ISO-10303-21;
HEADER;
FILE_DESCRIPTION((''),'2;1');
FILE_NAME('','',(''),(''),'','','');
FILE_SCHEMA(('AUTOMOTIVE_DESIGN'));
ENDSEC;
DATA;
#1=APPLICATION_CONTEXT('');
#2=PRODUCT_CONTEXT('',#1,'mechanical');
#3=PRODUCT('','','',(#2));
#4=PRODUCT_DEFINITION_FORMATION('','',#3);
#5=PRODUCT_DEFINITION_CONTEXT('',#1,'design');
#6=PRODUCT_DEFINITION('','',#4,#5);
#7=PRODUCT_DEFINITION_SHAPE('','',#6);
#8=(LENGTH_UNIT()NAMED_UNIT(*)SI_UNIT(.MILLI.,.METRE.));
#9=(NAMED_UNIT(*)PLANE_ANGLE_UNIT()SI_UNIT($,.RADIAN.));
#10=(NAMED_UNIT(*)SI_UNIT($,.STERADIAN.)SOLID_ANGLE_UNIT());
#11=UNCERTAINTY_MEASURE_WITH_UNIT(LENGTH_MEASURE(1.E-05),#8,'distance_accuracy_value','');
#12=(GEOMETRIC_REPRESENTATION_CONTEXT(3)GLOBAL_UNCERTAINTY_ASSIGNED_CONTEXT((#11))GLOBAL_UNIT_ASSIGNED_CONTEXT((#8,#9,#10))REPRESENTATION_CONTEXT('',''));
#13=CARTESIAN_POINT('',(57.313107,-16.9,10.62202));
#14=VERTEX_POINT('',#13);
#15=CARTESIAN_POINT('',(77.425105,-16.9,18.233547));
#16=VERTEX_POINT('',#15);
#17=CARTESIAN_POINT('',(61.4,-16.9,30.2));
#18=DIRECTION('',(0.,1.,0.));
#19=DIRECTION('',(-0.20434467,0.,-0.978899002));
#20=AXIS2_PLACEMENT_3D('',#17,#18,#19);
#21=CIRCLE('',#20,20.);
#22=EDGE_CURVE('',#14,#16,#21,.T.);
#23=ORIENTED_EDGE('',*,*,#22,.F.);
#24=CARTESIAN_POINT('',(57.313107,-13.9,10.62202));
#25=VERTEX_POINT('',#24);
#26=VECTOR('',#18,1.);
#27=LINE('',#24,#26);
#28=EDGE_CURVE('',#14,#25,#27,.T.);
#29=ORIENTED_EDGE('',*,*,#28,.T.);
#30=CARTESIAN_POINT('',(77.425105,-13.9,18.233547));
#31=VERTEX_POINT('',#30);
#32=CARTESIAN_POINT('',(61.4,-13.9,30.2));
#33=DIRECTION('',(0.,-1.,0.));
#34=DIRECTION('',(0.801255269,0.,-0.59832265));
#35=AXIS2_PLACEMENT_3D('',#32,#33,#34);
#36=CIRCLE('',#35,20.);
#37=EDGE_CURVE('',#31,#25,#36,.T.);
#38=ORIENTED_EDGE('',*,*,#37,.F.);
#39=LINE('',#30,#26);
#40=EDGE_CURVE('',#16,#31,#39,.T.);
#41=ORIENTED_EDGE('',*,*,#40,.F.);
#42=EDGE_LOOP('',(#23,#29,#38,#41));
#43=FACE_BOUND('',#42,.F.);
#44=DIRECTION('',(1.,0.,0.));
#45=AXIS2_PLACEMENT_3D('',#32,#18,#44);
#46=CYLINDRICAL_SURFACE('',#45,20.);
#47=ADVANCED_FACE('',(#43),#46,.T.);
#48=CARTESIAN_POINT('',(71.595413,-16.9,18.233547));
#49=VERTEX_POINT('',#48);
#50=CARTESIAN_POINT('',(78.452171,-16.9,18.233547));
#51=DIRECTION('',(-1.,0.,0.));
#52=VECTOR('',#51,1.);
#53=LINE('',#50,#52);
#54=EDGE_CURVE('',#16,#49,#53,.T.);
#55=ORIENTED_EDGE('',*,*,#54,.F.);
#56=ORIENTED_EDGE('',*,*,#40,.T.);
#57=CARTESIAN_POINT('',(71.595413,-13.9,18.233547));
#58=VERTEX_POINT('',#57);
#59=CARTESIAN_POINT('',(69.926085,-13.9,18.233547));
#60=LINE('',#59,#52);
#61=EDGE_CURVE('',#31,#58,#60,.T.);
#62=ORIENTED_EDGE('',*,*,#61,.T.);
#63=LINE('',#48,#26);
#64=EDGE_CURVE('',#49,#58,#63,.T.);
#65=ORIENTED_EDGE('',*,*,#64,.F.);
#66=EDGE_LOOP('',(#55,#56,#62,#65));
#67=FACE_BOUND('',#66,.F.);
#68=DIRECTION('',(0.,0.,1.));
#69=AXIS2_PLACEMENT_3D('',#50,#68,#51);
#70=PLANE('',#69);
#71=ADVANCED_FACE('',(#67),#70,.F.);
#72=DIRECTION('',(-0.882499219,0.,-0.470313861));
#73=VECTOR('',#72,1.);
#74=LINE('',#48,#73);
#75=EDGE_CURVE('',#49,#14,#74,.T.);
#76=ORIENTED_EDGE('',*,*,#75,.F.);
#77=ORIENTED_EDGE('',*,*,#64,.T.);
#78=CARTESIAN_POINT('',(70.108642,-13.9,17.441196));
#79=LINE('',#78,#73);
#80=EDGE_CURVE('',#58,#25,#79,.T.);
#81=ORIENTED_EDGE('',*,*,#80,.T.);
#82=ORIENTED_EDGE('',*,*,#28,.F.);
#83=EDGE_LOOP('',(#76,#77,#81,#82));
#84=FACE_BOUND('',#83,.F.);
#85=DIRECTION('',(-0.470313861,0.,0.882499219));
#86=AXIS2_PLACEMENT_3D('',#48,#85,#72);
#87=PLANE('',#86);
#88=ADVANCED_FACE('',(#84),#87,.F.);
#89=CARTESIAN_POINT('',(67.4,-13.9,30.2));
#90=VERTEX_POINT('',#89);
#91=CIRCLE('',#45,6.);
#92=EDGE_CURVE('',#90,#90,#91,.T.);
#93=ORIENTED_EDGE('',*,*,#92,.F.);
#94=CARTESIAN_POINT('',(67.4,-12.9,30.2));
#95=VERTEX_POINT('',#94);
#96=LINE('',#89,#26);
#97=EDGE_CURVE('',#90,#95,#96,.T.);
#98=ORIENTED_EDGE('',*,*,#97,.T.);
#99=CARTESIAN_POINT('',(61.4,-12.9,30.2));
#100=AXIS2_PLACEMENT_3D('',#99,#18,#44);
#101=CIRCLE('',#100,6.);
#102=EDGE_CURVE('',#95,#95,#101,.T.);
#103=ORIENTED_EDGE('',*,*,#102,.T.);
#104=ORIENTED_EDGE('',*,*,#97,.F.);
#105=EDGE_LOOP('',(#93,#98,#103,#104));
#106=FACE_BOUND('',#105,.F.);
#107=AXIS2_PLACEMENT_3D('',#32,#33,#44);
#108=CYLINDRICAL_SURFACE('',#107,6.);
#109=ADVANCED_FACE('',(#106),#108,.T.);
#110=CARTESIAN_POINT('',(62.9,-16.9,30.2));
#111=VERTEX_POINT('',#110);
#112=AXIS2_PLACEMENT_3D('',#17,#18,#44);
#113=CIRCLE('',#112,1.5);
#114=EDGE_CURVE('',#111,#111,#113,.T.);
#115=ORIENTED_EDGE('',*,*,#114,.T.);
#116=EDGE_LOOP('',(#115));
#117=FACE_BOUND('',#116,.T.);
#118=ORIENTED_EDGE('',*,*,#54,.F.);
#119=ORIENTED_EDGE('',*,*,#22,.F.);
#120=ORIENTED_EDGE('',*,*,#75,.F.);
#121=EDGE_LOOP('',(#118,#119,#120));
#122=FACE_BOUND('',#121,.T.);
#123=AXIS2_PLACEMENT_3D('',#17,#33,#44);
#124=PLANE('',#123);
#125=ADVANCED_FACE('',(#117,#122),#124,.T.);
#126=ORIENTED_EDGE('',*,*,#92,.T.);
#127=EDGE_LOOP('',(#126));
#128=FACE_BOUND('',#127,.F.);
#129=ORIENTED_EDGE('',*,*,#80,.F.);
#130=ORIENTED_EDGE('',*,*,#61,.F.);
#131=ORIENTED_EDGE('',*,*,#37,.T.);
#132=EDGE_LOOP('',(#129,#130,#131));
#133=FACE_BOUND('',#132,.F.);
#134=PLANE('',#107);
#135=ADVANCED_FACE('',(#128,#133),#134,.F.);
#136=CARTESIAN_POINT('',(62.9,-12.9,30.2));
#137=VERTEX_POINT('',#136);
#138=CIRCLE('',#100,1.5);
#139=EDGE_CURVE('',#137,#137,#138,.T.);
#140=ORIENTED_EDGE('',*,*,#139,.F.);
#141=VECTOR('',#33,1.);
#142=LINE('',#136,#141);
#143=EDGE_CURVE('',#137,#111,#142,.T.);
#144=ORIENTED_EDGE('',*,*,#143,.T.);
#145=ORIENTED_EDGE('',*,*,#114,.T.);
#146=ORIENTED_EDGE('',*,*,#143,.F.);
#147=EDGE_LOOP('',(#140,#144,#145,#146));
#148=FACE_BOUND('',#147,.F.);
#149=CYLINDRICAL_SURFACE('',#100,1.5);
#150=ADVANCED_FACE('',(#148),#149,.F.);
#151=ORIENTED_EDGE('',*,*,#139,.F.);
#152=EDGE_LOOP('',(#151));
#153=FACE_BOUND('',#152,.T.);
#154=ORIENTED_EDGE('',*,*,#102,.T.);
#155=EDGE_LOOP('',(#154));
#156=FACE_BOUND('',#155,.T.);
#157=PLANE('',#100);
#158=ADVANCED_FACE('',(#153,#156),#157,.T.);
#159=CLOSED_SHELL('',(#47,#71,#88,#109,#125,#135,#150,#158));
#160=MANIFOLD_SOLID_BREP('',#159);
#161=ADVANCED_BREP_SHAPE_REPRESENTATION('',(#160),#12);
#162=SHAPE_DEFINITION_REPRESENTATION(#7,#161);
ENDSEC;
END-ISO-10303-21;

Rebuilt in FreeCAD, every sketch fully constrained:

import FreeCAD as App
import Part
import Sketcher
from FreeCAD import Vector

doc = App.newDocument("Part")
body = doc.addObject("PartDesign::Body", "Body")

# Sketch on XZ plane
sketch1 = body.newObject("Sketcher::SketchObject", "Sketch")
sketch1.AttachmentSupport = (doc.getObject("XZ_Plane"), [""])
sketch1.MapMode = "FlatFace"
sketch1.addGeometry(Part.Circle(Vector(0, 0, 0), Vector(0, 0, 1), 20), False)
sketch1.addConstraint([
    Sketcher.Constraint("Coincident", 0, 3, -1, 1),
    Sketcher.Constraint("Diameter", 0, 40.0),
])
pad1 = body.newObject("PartDesign::Pad", "Pad")
pad1.Profile = sketch1
pad1.Length = 3

# Sketch on XZ plane
sketch2 = body.newObject("Sketcher::SketchObject", "Sketch001")
sketch2.AttachmentSupport = (doc.getObject("XZ_Plane"), [""])
sketch2.MapMode = "FlatFace"
sketch2.addGeometry(Part.Circle(Vector(0, 0, 0), Vector(0, 0, 1), 6), False)
sketch2.addConstraint([
    Sketcher.Constraint("Coincident", 0, 3, -1, 1),
    Sketcher.Constraint("Diameter", 0, 12.0),
])
pad2 = body.newObject("PartDesign::Pad", "Pad001")
pad2.Profile = sketch2
pad2.Length = 1
pad2.Reversed = True

# Sketch on XZ plane
sketch3 = body.newObject("Sketcher::SketchObject", "Sketch002")
sketch3.AttachmentSupport = (doc.getObject("XZ_Plane"), [""])
sketch3.MapMode = "FlatFace"
sketch3.AttachmentOffset = App.Placement(Vector(0, 0, -1), App.Rotation())
sketch3.addGeometry(Part.Circle(Vector(0, 0, 0), Vector(0, 0, 1), 1.5), False)
sketch3.addConstraint([
    Sketcher.Constraint("Coincident", 0, 3, -1, 1),
    Sketcher.Constraint("Diameter", 0, 3.0),
])
pocket1 = body.newObject("PartDesign::Pocket", "Pocket")
pocket1.Profile = sketch3
pocket1.Length = 5
pocket1.Reversed = True

# Sketch on XZ plane
sketch4 = body.newObject("Sketcher::SketchObject", "Sketch003")
sketch4.AttachmentSupport = (doc.getObject("XZ_Plane"), [""])
sketch4.MapMode = "FlatFace"
sketch4.AttachmentOffset = App.Placement(Vector(0, 0, 3), App.Rotation())
sketch4.addGeometry([
    Part.LineSegment(Vector(17, -12, 0), Vector(10, -12, 0)),
    Part.LineSegment(Vector(10, -12, 0), Vector(-7, -21, 0)),
    Part.LineSegment(Vector(-7, -21, 0), Vector(19, -21, 0)),
    Part.LineSegment(Vector(19, -21, 0), Vector(17, -12, 0)),
], False)
sketch4.addConstraint([
    Sketcher.Constraint("Coincident", 0, 2, 1, 1),
    Sketcher.Constraint("Coincident", 1, 2, 2, 1),
    Sketcher.Constraint("Coincident", 2, 2, 3, 1),
    Sketcher.Constraint("Coincident", 3, 2, 0, 1),
    Sketcher.Constraint("Horizontal", 0),
    Sketcher.Constraint("Horizontal", 2),
    Sketcher.Constraint("DistanceX", 0, 2, 0, 1, 6.856758),
    Sketcher.Constraint("DistanceX", 2, 1, 2, 2, 25.482583),
    Sketcher.Constraint("DistanceX", -1, 1, 3, 2, 17.052171),
    Sketcher.Constraint("DistanceX", 1, 2, 0, 2, 17.090729),
    Sketcher.Constraint("DistanceY", 1, 2, 0, 2, 9.108231),
    Sketcher.Constraint("DistanceY", 0, 2, -1, 1, 11.966453),
])
pocket2 = body.newObject("PartDesign::Pocket", "Pocket001")
pocket2.Profile = sketch4
pocket2.Length = 5
body2 = doc.addObject("PartDesign::Body", "Body001")
doc.recompute()

body.Placement = App.Placement(Vector(61.4, -13.9, 30.2), App.Rotation(Vector(0, 0, 1), 0))
boolean = body2.newObject("PartDesign::Boolean", "Boolean")
boolean.Type = "Fuse"
boolean.addObjects([body])

doc.recompute()
